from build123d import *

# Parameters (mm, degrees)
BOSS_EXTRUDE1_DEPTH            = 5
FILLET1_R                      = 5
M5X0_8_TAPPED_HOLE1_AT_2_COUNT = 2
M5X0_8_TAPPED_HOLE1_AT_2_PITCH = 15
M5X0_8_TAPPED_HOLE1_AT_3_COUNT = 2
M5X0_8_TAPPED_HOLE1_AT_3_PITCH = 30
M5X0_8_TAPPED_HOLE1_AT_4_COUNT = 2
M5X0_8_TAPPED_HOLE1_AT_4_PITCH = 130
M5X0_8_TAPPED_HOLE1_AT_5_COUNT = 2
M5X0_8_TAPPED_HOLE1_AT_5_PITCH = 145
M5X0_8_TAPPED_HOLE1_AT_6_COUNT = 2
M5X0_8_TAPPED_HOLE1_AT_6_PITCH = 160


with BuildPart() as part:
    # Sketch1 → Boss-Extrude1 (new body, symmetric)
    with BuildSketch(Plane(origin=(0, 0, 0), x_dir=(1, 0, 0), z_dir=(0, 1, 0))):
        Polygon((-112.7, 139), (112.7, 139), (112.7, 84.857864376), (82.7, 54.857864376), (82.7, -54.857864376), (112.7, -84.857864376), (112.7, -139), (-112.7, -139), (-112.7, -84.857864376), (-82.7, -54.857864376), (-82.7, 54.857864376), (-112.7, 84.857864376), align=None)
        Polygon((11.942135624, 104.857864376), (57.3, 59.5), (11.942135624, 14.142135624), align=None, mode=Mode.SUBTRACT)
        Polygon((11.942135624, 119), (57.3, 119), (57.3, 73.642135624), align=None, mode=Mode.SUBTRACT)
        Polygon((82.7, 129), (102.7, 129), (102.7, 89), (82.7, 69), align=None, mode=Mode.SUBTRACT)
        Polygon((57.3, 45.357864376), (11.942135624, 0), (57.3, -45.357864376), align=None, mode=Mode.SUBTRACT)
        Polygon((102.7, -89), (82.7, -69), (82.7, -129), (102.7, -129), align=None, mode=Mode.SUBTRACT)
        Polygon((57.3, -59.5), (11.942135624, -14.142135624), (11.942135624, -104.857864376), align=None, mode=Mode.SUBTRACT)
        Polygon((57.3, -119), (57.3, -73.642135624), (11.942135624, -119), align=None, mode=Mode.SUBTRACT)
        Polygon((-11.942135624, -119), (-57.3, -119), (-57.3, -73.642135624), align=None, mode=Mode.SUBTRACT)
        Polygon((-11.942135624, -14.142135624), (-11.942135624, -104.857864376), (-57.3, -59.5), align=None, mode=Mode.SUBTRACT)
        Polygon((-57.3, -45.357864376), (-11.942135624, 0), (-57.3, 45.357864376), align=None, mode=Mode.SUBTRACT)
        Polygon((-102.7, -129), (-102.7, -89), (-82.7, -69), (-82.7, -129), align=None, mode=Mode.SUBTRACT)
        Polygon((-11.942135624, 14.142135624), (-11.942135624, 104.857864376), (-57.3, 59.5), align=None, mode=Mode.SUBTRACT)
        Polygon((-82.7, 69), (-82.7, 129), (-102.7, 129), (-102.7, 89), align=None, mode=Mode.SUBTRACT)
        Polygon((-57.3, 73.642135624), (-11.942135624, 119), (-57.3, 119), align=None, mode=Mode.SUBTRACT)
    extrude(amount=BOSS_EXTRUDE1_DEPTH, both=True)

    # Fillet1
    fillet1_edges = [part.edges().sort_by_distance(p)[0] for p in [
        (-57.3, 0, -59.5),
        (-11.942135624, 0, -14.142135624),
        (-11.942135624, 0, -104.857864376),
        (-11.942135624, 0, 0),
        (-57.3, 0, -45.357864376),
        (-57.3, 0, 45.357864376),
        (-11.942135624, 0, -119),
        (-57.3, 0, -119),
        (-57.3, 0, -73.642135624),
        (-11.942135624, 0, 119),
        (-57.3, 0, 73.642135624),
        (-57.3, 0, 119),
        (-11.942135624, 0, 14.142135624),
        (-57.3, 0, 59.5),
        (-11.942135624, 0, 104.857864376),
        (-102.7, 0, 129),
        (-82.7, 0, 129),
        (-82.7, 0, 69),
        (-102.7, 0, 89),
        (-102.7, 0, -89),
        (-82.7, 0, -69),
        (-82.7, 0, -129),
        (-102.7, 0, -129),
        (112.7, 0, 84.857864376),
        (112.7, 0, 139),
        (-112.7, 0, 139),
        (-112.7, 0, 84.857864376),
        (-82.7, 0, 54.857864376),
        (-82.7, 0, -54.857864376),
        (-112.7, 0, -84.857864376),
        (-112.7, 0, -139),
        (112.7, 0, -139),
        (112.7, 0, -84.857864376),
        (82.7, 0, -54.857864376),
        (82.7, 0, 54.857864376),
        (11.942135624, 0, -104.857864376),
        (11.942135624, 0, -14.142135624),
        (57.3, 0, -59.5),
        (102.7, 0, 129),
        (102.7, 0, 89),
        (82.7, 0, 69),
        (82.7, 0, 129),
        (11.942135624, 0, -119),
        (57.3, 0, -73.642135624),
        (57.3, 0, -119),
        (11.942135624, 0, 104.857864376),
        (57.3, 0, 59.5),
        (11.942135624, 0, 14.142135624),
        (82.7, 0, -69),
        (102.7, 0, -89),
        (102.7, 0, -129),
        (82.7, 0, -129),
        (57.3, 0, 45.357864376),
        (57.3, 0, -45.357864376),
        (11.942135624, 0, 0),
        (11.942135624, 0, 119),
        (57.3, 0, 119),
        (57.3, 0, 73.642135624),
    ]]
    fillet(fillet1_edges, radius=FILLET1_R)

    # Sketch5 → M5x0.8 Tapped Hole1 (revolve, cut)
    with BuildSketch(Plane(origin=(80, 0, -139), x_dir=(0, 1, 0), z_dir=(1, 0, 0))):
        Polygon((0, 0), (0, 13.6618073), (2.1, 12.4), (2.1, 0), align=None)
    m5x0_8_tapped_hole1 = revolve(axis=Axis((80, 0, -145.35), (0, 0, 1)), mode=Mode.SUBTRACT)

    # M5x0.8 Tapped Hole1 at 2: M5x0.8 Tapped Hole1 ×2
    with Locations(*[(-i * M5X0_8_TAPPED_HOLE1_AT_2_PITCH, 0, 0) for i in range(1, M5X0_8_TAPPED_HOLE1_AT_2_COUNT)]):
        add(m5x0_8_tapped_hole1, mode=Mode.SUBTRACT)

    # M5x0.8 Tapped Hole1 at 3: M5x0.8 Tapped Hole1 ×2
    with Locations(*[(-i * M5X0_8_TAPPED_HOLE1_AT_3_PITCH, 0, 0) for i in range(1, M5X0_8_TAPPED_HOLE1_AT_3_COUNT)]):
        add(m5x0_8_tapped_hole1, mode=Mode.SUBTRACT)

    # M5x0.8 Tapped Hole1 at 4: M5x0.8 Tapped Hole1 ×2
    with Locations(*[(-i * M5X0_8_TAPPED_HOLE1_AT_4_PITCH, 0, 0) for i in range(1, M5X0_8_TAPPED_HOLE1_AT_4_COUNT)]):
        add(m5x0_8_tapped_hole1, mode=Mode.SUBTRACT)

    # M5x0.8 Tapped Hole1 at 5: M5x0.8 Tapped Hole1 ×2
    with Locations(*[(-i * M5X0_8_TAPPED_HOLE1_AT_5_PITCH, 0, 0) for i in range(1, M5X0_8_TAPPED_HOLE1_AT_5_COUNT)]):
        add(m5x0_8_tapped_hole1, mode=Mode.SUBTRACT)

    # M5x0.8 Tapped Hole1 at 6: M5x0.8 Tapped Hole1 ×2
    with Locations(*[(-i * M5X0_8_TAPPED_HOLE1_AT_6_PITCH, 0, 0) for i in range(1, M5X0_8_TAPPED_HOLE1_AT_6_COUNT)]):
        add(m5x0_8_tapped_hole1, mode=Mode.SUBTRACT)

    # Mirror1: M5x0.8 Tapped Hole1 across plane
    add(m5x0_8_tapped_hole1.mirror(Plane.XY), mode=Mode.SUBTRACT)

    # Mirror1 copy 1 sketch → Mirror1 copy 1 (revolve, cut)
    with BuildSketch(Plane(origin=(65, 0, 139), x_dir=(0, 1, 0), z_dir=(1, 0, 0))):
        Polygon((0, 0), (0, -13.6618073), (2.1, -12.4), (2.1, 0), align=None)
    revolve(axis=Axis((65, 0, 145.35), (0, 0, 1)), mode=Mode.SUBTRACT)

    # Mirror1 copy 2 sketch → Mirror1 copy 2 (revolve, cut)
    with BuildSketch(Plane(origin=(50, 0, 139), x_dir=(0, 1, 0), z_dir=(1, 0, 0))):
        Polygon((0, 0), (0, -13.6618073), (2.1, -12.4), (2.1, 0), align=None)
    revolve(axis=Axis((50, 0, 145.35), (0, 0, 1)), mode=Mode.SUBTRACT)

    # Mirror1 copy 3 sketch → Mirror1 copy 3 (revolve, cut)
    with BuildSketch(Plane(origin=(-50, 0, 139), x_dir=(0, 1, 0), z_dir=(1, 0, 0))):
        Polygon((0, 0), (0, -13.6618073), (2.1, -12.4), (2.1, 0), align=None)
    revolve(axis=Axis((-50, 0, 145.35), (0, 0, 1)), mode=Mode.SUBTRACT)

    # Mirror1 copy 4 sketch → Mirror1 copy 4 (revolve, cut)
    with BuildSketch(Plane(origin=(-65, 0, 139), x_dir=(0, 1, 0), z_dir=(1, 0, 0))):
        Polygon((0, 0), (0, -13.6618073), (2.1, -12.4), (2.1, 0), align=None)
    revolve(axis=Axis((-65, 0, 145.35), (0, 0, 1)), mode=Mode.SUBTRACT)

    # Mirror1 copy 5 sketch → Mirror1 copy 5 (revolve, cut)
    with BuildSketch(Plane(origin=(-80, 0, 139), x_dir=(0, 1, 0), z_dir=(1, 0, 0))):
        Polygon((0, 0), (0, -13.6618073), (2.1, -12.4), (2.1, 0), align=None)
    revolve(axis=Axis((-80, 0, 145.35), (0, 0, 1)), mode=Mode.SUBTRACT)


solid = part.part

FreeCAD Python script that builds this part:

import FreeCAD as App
import Part
import Sketcher

V = App.Vector
Q = App.Units.Quantity


def edges_at(feature, points):
    """Names of the edges that pass closest to the given points."""
    edges = feature.Shape.Edges
    near = lambda p: min(range(len(edges)), key=lambda i: edges[i].distToShape(Part.Vertex(*p))[0])
    return sorted({f"Edge{near(p) + 1}" for p in points})


def add_polygon(sketch, points):
    """Adds a closed chain of lines whose ends are joined by coincident constraints."""
    first, n = sketch.GeometryCount, len(points)
    for a, b in zip(points, points[1:] + points[:1]):
        sketch.addGeometry(Part.LineSegment(App.Vector(*a, 0), App.Vector(*b, 0)), False)
    for i in range(n):
        sketch.addConstraint(Sketcher.Constraint("Coincident", first + i, 2, first + (i + 1) % n, 1))

doc = App.newDocument("Part")
body = doc.addObject("PartDesign::Body", "Body")

sketch1 = body.newObject("Sketcher::SketchObject", "Sketch")
sketch1.AttachmentSupport = (doc.getObject("XZ_Plane"), [""])
sketch1.MapMode = "FlatFace"
add_polygon(sketch1, [(113, -139), (-113, -139), (-113, -85), (-83, -55), (-83, 55), (-113, 85), (-113, 139), (113, 139), (113, 85), (83, 55), (83, -55), (113, -85)])
add_polygon(sketch1, [(103, 89), (103, 129), (83, 129), (83, 69)])
add_polygon(sketch1, [(57, 119), (12, 119), (57, 74)])
add_polygon(sketch1, [(57, 60), (12, 105), (12, 14)])
add_polygon(sketch1, [(-12, 119), (-57, 119), (-57, 74)])
add_polygon(sketch1, [(-103, 129), (-103, 89), (-83, 69), (-83, 129)])
add_polygon(sketch1, [(-12, 14), (-12, 105), (-57, 60)])
add_polygon(sketch1, [(57, -45), (57, 45), (12, 0)])
add_polygon(sketch1, [(12, -105), (57, -60), (12, -14)])
add_polygon(sketch1, [(83, -129), (103, -129), (103, -89), (83, -69)])
add_polygon(sketch1, [(12, -119), (57, -119), (57, -74)])
add_polygon(sketch1, [(-57, 45), (-57, -45), (-12, 0)])
add_polygon(sketch1, [(-12, -14), (-57, -60), (-12, -105)])
add_polygon(sketch1, [(-57, -74), (-57, -119), (-12, -119)])
add_polygon(sketch1, [(-83, -69), (-103, -89), (-103, -129), (-83, -129)])
sketch1.addConstraint([
    Sketcher.Constraint("Horizontal", 0),
    Sketcher.Constraint("Vertical", 1),
    Sketcher.Constraint("Vertical", 3),
    Sketcher.Constraint("Vertical", 5),
    Sketcher.Constraint("Horizontal", 6),
    Sketcher.Constraint("Vertical", 7),
    Sketcher.Constraint("Vertical", 9),
    Sketcher.Constraint("Vertical", 11),
    Sketcher.Constraint("Vertical", 12),
    Sketcher.Constraint("Horizontal", 13),
    Sketcher.Constraint("Vertical", 14),
    Sketcher.Constraint("Horizontal", 16),
    Sketcher.Constraint("Vertical", 18),
    Sketcher.Constraint("Vertical", 20),
    Sketcher.Constraint("Horizontal", 22),
    Sketcher.Constraint("Vertical", 23),
    Sketcher.Constraint("Vertical", 25),
    Sketcher.Constraint("Vertical", 27),
    Sketcher.Constraint("Horizontal", 28),
    Sketcher.Constraint("Vertical", 29),
    Sketcher.Constraint("Vertical", 32),
    Sketcher.Constraint("Vertical", 37),
    Sketcher.Constraint("Horizontal", 38),
    Sketcher.Constraint("Vertical", 39),
    Sketcher.Constraint("Vertical", 41),
    Sketcher.Constraint("Horizontal", 42),
    Sketcher.Constraint("Vertical", 43),
    Sketcher.Constraint("Vertical", 45),
    Sketcher.Constraint("Vertical", 50),
    Sketcher.Constraint("Vertical", 51),
    Sketcher.Constraint("Horizontal", 52),
    Sketcher.Constraint("Vertical", 55),
    Sketcher.Constraint("Horizontal", 56),
    Sketcher.Constraint("Vertical", 57),
    Sketcher.Constraint("Symmetric", 0, 2, 6, 2, -1, 1),
    Sketcher.Constraint("Symmetric", 2, 2, 8, 2, -1, 1),
    Sketcher.Constraint("Symmetric", 4, 2, 10, 2, -1, 1),
    Sketcher.Constraint("Symmetric", 30, 2, 35, 2, -1, 1),
    Sketcher.Constraint("Symmetric", 31, 2, 36, 2, -1, 1),
    Sketcher.Constraint("Symmetric", 28, 2, 38, 2, -1, 1),
    Sketcher.Constraint("Symmetric", 26, 2, 40, 2, -1, 1),
    Sketcher.Constraint("Symmetric", 22, 2, 42, 2, -1, 1),
    Sketcher.Constraint("Symmetric", 32, 2, 45, 2, -1, 1),
    Sketcher.Constraint("Symmetric", 33, 2, 46, 2, -1, 1),
    Sketcher.Constraint("Symmetric", 21, 2, 48, 2, -1, 1),
    Sketcher.Constraint("Symmetric", 19, 2, 49, 2, -1, 1),
    Sketcher.Constraint("Symmetric", 18, 2, 51, 2, -1, 1),
    Sketcher.Constraint("Symmetric", 15, 2, 54, 2, -1, 1),
    Sketcher.Constraint("Symmetric", 13, 2, 56, 2, -1, 1),
    Sketcher.Constraint("Symmetric", 4, 2, 7, 2, -2),
    Sketcher.Constraint("Symmetric", 18, 2, 22, 2, -2),
    Sketcher.Constraint("Symmetric", 15, 2, 25, 2, -2),
    Sketcher.Constraint("Symmetric", 14, 2, 26, 2, -2),
    Sketcher.Constraint("Symmetric", 19, 2, 29, 2, -2),
    Sketcher.Constraint("Symmetric", 21, 2, 30, 2, -2),
    Sketcher.Constraint("PointOnObject", 33, 2, -1),
    Sketcher.Constraint("Perpendicular", 2, 4),
    Sketcher.Constraint("Perpendicular", 4, 8),
    Sketcher.Constraint("Perpendicular", 8, 10),
    Sketcher.Constraint("Perpendicular", 10, 15),
    Sketcher.Constraint("Perpendicular", 15, 17),
    Sketcher.Constraint("Parallel", 17, 19),
    Sketcher.Constraint("Perpendicular", 19, 21),
    Sketcher.Constraint("Parallel", 21, 24),
    Sketcher.Constraint("Perpendicular", 24, 26),
    Sketcher.Constraint("Perpendicular", 30, 31),
    Sketcher.Constraint("Perpendicular", 31, 33),
    Sketcher.Constraint("Perpendicular", 33, 34),
    Sketcher.Constraint("Perpendicular", 34, 35),
    Sketcher.Constraint("Parallel", 36, 40),
    Sketcher.Constraint("Perpendicular", 40, 44),
    Sketcher.Constraint("Perpendicular", 46, 47),
    Sketcher.Constraint("Perpendicular", 47, 48),
    Sketcher.Constraint("Parallel", 49, 53),
    Sketcher.Constraint("Perpendicular", 53, 54),
    Sketcher.Constraint("Horizontal", 17, 2, 23, 2),
    Sketcher.Constraint("Horizontal", 13, 2, 27, 2),
    Sketcher.Constraint("Horizontal", 43, 2, 53, 2),
    Sketcher.Constraint("Vertical", 9, 2, 13, 2),
    Sketcher.Constraint("Vertical", 16, 2, 19, 2),
    Sketcher.Constraint("Vertical", 18, 2, 21, 2),
    Sketcher.Constraint("Vertical", 21, 2, 32, 2),
    Sketcher.Constraint("Vertical", 20, 2, 33, 2),
    Sketcher.Constraint("Vertical", 37, 2, 44, 2),
    Sketcher.Constraint("DistanceX", 13, 2, 13, 1, 20.0),
    Sketcher.Constraint("DistanceY", 12, 1, 12, 2, 40.0),
    Sketcher.Constraint("DistanceX", 0, 2, 0, 1, 225.4),
    Sketcher.Constraint("DistanceY", 0, 2, -1, 1, 139.0),
    Sketcher.Constraint("DistanceY", -1, 1, 12, 2, 129.0),
    Sketcher.Constraint("DistanceY", -1, 1, 16, 2, 119.0),
    Sketcher.Constraint("DistanceX", 1, 2, 2, 2, 30.0),
    Sketcher.Constraint("DistanceY", 9, 2, 20, 2, 69.0),
    Sketcher.Constraint("DistanceY", 37, 2, 9, 2, 50.0),
    Sketcher.Constraint("DistanceX", -1, 1, 17, 2, 57.3),
    Sketcher.Constraint("DistanceY", 3, 1, 3, 2, 109.715729),
])
pad1 = body.newObject("PartDesign::Pad", "Pad")
pad1.Profile = sketch1
pad1.Length = 10
pad1.Midplane = True
doc.recompute()

fillet = body.newObject("PartDesign::Fillet", "Fillet")
fillet.Base = (pad1, edges_at(pad1, [
    (-57.3, 0, -59.5),
    (-11.942, 0, -14.142),
    (-11.942, 0, -104.858),
    (-11.942, 0, 0),
    (-57.3, 0, -45.358),
    (-57.3, 0, 45.358),
    (-11.942, 0, -119),
    (-57.3, 0, -119),
    (-57.3, 0, -73.642),
    (-11.942, 0, 119),
    (-57.3, 0, 73.642),
    (-57.3, 0, 119),
    (-11.942, 0, 14.142),
    (-57.3, 0, 59.5),
    (-11.942, 0, 104.858),
    (-102.7, 0, 129),
    (-82.7, 0, 129),
    (-82.7, 0, 69),
    (-102.7, 0, 89),
    (-102.7, 0, -89),
    (-82.7, 0, -69),
    (-82.7, 0, -129),
    (-102.7, 0, -129),
    (112.7, 0, 84.858),
    (112.7, 0, 139),
    (-112.7, 0, 139),
    (-112.7, 0, 84.858),
    (-82.7, 0, 54.858),
    (-82.7, 0, -54.858),
    (-112.7, 0, -84.858),
    (-112.7, 0, -139),
    (112.7, 0, -139),
    (112.7, 0, -84.858),
    (82.7, 0, -54.858),
    (82.7, 0, 54.858),
    (11.942, 0, -104.858),
    (11.942, 0, -14.142),
    (57.3, 0, -59.5),
    (102.7, 0, 129),
    (102.7, 0, 89),
    (82.7, 0, 69),
    (82.7, 0, 129),
    (11.942, 0, -119),
    (57.3, 0, -73.642),
    (57.3, 0, -119),
    (11.942, 0, 104.858),
    (57.3, 0, 59.5),
    (11.942, 0, 14.142),
    (82.7, 0, -69),
    (102.7, 0, -89),
    (102.7, 0, -129),
    (82.7, 0, -129),
    (57.3, 0, 45.358),
    (57.3, 0, -45.358),
    (11.942, 0, 0),
    (11.942, 0, 119),
    (57.3, 0, 119),
    (57.3, 0, 73.642),
]))
fillet.Radius = 5

sketch2 = body.newObject("Sketcher::SketchObject", "Sketch001")
sketch2.AttachmentSupport = (doc.getObject("YZ_Plane"), [""])
sketch2.MapMode = "FlatFace"
sketch2.AttachmentOffset = App.Placement(V(0, 0, 80), App.Rotation())
add_polygon(sketch2, [(0, -125.3), (0, -139), (2.1, -139), (2.1, -126.6)])
sketch2.addConstraint([
    Sketcher.Constraint("Vertical", 0),
    Sketcher.Constraint("Horizontal", 1),
    Sketcher.Constraint("Vertical", 2),
    Sketcher.Constraint("PointOnObject", 0, 2, -2),
    Sketcher.Constraint("Angle", 3, Q("149 deg")),
    Sketcher.Constraint("DistanceX", 1, 1, 1, 2, 2.1),
    Sketcher.Constraint("DistanceY", 2, 1, 2, 2, 12.4),
    Sketcher.Constraint("DistanceY", 0, 2, -1, 1, 139.0),
])
groove = body.newObject("PartDesign::Groove", "Groove")
groove.Profile = sketch2
groove.ReferenceAxis = (sketch2, ["V_Axis"])
groove.Angle = 360
doc.recompute()

linearpattern = body.newObject("PartDesign::LinearPattern", "LinearPattern")
linearpattern.Originals = [groove]
linearpattern.Direction = (doc.getObject("X_Axis"), [""])
linearpattern.Mode = "offset"
linearpattern.Offset = 15
linearpattern.Occurrences = 2
linearpattern.Reversed = True
body.Tip = linearpattern
doc.recompute()

linearpattern2 = body.newObject("PartDesign::LinearPattern", "LinearPattern001")
linearpattern2.Originals = [groove]
linearpattern2.Direction = (doc.getObject("X_Axis"), [""])
linearpattern2.Mode = "offset"
linearpattern2.Offset = 30
linearpattern2.Occurrences = 2
linearpattern2.Reversed = True
body.Tip = linearpattern2
doc.recompute()

linearpattern3 = body.newObject("PartDesign::LinearPattern", "LinearPattern002")
linearpattern3.Originals = [groove]
linearpattern3.Direction = (doc.getObject("X_Axis"), [""])
linearpattern3.Mode = "offset"
linearpattern3.Offset = 130
linearpattern3.Occurrences = 2
linearpattern3.Reversed = True
body.Tip = linearpattern3
doc.recompute()

linearpattern4 = body.newObject("PartDesign::LinearPattern", "LinearPattern003")
linearpattern4.Originals = [groove]
linearpattern4.Direction = (doc.getObject("X_Axis"), [""])
linearpattern4.Mode = "offset"
linearpattern4.Offset = 145
linearpattern4.Occurrences = 2
linearpattern4.Reversed = True
body.Tip = linearpattern4
doc.recompute()

linearpattern5 = body.newObject("PartDesign::LinearPattern", "LinearPattern004")
linearpattern5.Originals = [groove]
linearpattern5.Direction = (doc.getObject("X_Axis"), [""])
linearpattern5.Mode = "offset"
linearpattern5.Offset = 160
linearpattern5.Occurrences = 2
linearpattern5.Reversed = True
body.Tip = linearpattern5
doc.recompute()

mirrored = body.newObject("PartDesign::Mirrored", "Mirrored")
mirrored.Originals = [groove]
mirrored.MirrorPlane = (doc.getObject("XY_Plane"), [""])
body.Tip = mirrored

sketch3 = body.newObject("Sketcher::SketchObject", "Sketch002")
sketch3.AttachmentSupport = (doc.getObject("YZ_Plane"), [""])
sketch3.MapMode = "FlatFace"
sketch3.AttachmentOffset = App.Placement(V(0, 0, 65), App.Rotation())
add_polygon(sketch3, [(0, 139), (0, 125.3), (2.1, 126.6), (2.1, 139)])
sketch3.addConstraint([
    Sketcher.Constraint("Vertical", 0),
    Sketcher.Constraint("Vertical", 2),
    Sketcher.Constraint("Horizontal", 3),
    Sketcher.Constraint("PointOnObject", 0, 2, -2),
    Sketcher.Constraint("Angle", 1, Q("31 deg")),
    Sketcher.Constraint("DistanceX", 3, 2, 3, 1, 2.1),
    Sketcher.Constraint("DistanceY", 2, 1, 2, 2, 12.4),
    Sketcher.Constraint("DistanceY", -1, 1, 2, 2, 139.0),
])
groove2 = body.newObject("PartDesign::Groove", "Groove001")
groove2.Profile = sketch3
groove2.ReferenceAxis = (sketch3, ["V_Axis"])
groove2.Angle = 360

sketch4 = body.newObject("Sketcher::SketchObject", "Sketch003")
sketch4.AttachmentSupport = (doc.getObject("YZ_Plane"), [""])
sketch4.MapMode = "FlatFace"
sketch4.AttachmentOffset = App.Placement(V(0, 0, 50), App.Rotation())
add_polygon(sketch4, [(0, 139), (0, 125.3), (2.1, 126.6), (2.1, 139)])
sketch4.addConstraint([
    Sketcher.Constraint("Vertical", 0),
    Sketcher.Constraint("Vertical", 2),
    Sketcher.Constraint("Horizontal", 3),
    Sketcher.Constraint("PointOnObject", 0, 2, -2),
    Sketcher.Constraint("Angle", 1, Q("31 deg")),
    Sketcher.Constraint("DistanceX", 3, 2, 3, 1, 2.1),
    Sketcher.Constraint("DistanceY", 2, 1, 2, 2, 12.4),
    Sketcher.Constraint("DistanceY", -1, 1, 2, 2, 139.0),
])
groove3 = body.newObject("PartDesign::Groove", "Groove002")
groove3.Profile = sketch4
groove3.ReferenceAxis = (sketch4, ["V_Axis"])
groove3.Angle = 360

sketch5 = body.newObject("Sketcher::SketchObject", "Sketch004")
sketch5.AttachmentSupport = (doc.getObject("YZ_Plane"), [""])
sketch5.MapMode = "FlatFace"
sketch5.AttachmentOffset = App.Placement(V(0, 0, -50), App.Rotation())
add_polygon(sketch5, [(0, 139), (0, 125.3), (2.1, 126.6), (2.1, 139)])
sketch5.addConstraint([
    Sketcher.Constraint("Vertical", 0),
    Sketcher.Constraint("Vertical", 2),
    Sketcher.Constraint("Horizontal", 3),
    Sketcher.Constraint("PointOnObject", 0, 2, -2),
    Sketcher.Constraint("Angle", 1, Q("31 deg")),
    Sketcher.Constraint("DistanceX", 3, 2, 3, 1, 2.1),
    Sketcher.Constraint("DistanceY", 2, 1, 2, 2, 12.4),
    Sketcher.Constraint("DistanceY", -1, 1, 2, 2, 139.0),
])
groove4 = body.newObject("PartDesign::Groove", "Groove003")
groove4.Profile = sketch5
groove4.ReferenceAxis = (sketch5, ["V_Axis"])
groove4.Angle = 360

sketch6 = body.newObject("Sketcher::SketchObject", "Sketch005")
sketch6.AttachmentSupport = (doc.getObject("YZ_Plane"), [""])
sketch6.MapMode = "FlatFace"
sketch6.AttachmentOffset = App.Placement(V(0, 0, -65), App.Rotation())
add_polygon(sketch6, [(0, 139), (0, 125.3), (2.1, 126.6), (2.1, 139)])
sketch6.addConstraint([
    Sketcher.Constraint("Vertical", 0),
    Sketcher.Constraint("Vertical", 2),
    Sketcher.Constraint("Horizontal", 3),
    Sketcher.Constraint("PointOnObject", 0, 2, -2),
    Sketcher.Constraint("Angle", 1, Q("31 deg")),
    Sketcher.Constraint("DistanceX", 3, 2, 3, 1, 2.1),
    Sketcher.Constraint("DistanceY", 2, 1, 2, 2, 12.4),
    Sketcher.Constraint("DistanceY", -1, 1, 2, 2, 139.0),
])
groove5 = body.newObject("PartDesign::Groove", "Groove004")
groove5.Profile = sketch6
groove5.ReferenceAxis = (sketch6, ["V_Axis"])
groove5.Angle = 360

sketch7 = body.newObject("Sketcher::SketchObject", "Sketch006")
sketch7.AttachmentSupport = (doc.getObject("YZ_Plane"), [""])
sketch7.MapMode = "FlatFace"
sketch7.AttachmentOffset = App.Placement(V(0, 0, -80), App.Rotation())
add_polygon(sketch7, [(0, 139), (0, 125.3), (2.1, 126.6), (2.1, 139)])
sketch7.addConstraint([
    Sketcher.Constraint("Vertical", 0),
    Sketcher.Constraint("Vertical", 2),
    Sketcher.Constraint("Horizontal", 3),
    Sketcher.Constraint("PointOnObject", 0, 2, -2),
    Sketcher.Constraint("Angle", 1, Q("31 deg")),
    Sketcher.Constraint("DistanceX", 3, 2, 3, 1, 2.1),
    Sketcher.Constraint("DistanceY", 2, 1, 2, 2, 12.4),
    Sketcher.Constraint("DistanceY", -1, 1, 2, 2, 139.0),
])
groove6 = body.newObject("PartDesign::Groove", "Groove005")
groove6.Profile = sketch7
groove6.ReferenceAxis = (sketch7, ["V_Axis"])
groove6.Angle = 360

doc.recompute()
